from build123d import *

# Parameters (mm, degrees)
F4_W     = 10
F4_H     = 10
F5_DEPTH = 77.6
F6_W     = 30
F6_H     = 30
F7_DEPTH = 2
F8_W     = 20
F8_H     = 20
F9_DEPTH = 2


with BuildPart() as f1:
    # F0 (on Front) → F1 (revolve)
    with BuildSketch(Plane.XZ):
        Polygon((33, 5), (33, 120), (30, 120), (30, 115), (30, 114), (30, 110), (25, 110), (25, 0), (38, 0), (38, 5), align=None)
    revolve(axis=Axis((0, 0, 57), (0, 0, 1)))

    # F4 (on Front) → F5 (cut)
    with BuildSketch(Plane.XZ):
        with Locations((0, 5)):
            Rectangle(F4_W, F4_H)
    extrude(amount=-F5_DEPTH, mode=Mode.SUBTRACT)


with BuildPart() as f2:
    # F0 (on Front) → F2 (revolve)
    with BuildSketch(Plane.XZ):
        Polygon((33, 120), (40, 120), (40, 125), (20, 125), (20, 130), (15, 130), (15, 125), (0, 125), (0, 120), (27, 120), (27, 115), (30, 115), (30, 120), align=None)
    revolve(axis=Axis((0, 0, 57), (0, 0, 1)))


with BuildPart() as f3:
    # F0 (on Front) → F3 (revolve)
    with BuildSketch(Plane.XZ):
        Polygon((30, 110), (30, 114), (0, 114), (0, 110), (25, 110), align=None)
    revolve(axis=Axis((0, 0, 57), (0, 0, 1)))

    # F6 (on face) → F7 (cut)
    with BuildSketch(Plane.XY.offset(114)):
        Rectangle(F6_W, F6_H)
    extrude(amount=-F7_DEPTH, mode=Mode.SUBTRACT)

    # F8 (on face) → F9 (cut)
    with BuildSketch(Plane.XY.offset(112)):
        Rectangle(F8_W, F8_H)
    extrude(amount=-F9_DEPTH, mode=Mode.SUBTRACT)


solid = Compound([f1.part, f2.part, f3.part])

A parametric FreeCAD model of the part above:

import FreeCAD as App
import Part
import Sketcher

V = App.Vector

doc = App.newDocument("Part")
params = doc.addObject("Spreadsheet::Sheet", "Params")
for row, (alias, value) in enumerate([
    ("sketch1_width", "3 mm"),
    ("sketch1_width2", "5 mm"),
    ("sketch1_height", "115 mm"),
    ("sketch1_height2", "10 mm"),
    ("revolution_angle", "360 deg"),
    ("sketch2_width", "10 mm"),
    ("pocket1_length", "77.6 mm"),
    ("sketch3_width", "20 mm"),
    ("sketch3_width2", "5 mm"),
    ("sketch3_width3", "15 mm"),
    ("sketch3_width4", "27 mm"),
    ("sketch3_width5", "3 mm"),
    ("revolution2_angle", "360 deg"),
    ("sketch4_width", "30 mm"),
    ("sketch4_height", "4 mm"),
    ("revolution3_angle", "360 deg"),
    ("sketch5_width", "30 mm"),
    ("pocket2_length", "2 mm"),
    ("sketch6_width", "20 mm"),
    ("pocket3_length", "2 mm"),
], start=1):
    params.set(f"A{row}", alias)
    params.set(f"B{row}", "=" + value)
    params.setAlias(f"B{row}", alias)

body = doc.addObject("PartDesign::Body", "Body")

# Sketch on XZ plane
sketch1 = doc.addObject("Sketcher::SketchObject", "Sketch")
body.addObject(sketch1)
sketch1.AttachmentSupport = (doc.XZ_Plane, [""])
sketch1.MapMode = "FlatFace"
sketch1.addGeometry([
    Part.LineSegment(V(33, 5, 0), V(33, 120, 0)),  # 0
    Part.LineSegment(V(33, 120, 0), V(30, 120, 0)),  # 1
    Part.LineSegment(V(30, 120, 0), V(30, 110, 0)),  # 2
    Part.LineSegment(V(30, 110, 0), V(25, 110, 0)),  # 3
    Part.LineSegment(V(25, 110, 0), V(25, 0, 0)),  # 4
    Part.LineSegment(V(25, 0, 0), V(38, 0, 0)),  # 5
    Part.LineSegment(V(38, 0, 0), V(38, 5, 0)),  # 6
    Part.LineSegment(V(38, 5, 0), V(33, 5, 0)),  # 7
], False)
sketch1.addConstraint([
    Sketcher.Constraint("Coincident", 0, 2, 1, 1),
    Sketcher.Constraint("Coincident", 1, 2, 2, 1),
    Sketcher.Constraint("Coincident", 2, 2, 3, 1),
    Sketcher.Constraint("Coincident", 3, 2, 4, 1),
    Sketcher.Constraint("Coincident", 4, 2, 5, 1),
    Sketcher.Constraint("Coincident", 5, 2, 6, 1),
    Sketcher.Constraint("Coincident", 6, 2, 7, 1),
    Sketcher.Constraint("Coincident", 7, 2, 0, 1),
    Sketcher.Constraint("Vertical", 0),
    Sketcher.Constraint("Horizontal", 1),
    Sketcher.Constraint("Vertical", 2),
    Sketcher.Constraint("Horizontal", 3),
    Sketcher.Constraint("Vertical", 4),
    Sketcher.Constraint("Horizontal", 5),
    Sketcher.Constraint("Vertical", 6),
    Sketcher.Constraint("Horizontal", 7),
    Sketcher.Constraint("PointOnObject", 4, 2, -1),
    Sketcher.Constraint("Equal", 3, 7),
    Sketcher.Constraint("Equal", 7, 6),
    Sketcher.Constraint("DistanceX", 1, 2, 1, 1, 3.0),
    Sketcher.Constraint("DistanceX", 3, 2, 3, 1, 5.0),
    Sketcher.Constraint("DistanceY", 0, 1, 0, 2, 115.0),
    Sketcher.Constraint("DistanceY", 2, 2, 2, 1, 10.0),
    Sketcher.Constraint("DistanceX", -1, 1, 0, 2, 33.0),
])
sketch1.setExpression("Constraints[19]", "Params.sketch1_width")
sketch1.setExpression("Constraints[20]", "Params.sketch1_width2")
sketch1.setExpression("Constraints[21]", "Params.sketch1_height")
sketch1.setExpression("Constraints[22]", "Params.sketch1_height2")
revolution = doc.addObject("PartDesign::Revolution", "Revolution")
body.addObject(revolution)
revolution.Profile = sketch1
revolution.ReferenceAxis = (sketch1, ["V_Axis"])
revolution.setExpression("Angle", "Params.revolution_angle")

# Sketch on XZ plane
sketch2 = doc.addObject("Sketcher::SketchObject", "Sketch001")
body.addObject(sketch2)
sketch2.AttachmentSupport = (doc.XZ_Plane, [""])
sketch2.MapMode = "FlatFace"
sketch2.addGeometry([
    Part.LineSegment(V(-5, 10, 0), V(-5, 0, 0)),
    Part.LineSegment(V(-5, 0, 0), V(5, 0, 0)),
    Part.LineSegment(V(5, 0, 0), V(5, 10, 0)),
    Part.LineSegment(V(5, 10, 0), V(-5, 10, 0)),
], False)
sketch2.addConstraint([
    Sketcher.Constraint("Coincident", 0, 2, 1, 1),
    Sketcher.Constraint("Coincident", 1, 2, 2, 1),
    Sketcher.Constraint("Coincident", 2, 2, 3, 1),
    Sketcher.Constraint("Coincident", 3, 2, 0, 1),
    Sketcher.Constraint("Vertical", 0),
    Sketcher.Constraint("Horizontal", 1),
    Sketcher.Constraint("Vertical", 2),
    Sketcher.Constraint("Horizontal", 3),
    Sketcher.Constraint("Symmetric", 0, 2, 1, 2, -1, 1),
    Sketcher.Constraint("Equal", 3, 0),
    Sketcher.Constraint("DistanceX", 1, 1, 1, 2, 10.0),
])
sketch2.setExpression("Constraints[10]", "Params.sketch2_width")
pocket1 = doc.addObject("PartDesign::Pocket", "Pocket")
body.addObject(pocket1)
pocket1.Profile = sketch2
pocket1.setExpression("Length", "Params.pocket1_length")
body2 = doc.addObject("PartDesign::Body", "Body001")

# Sketch on XZ plane
sketch3 = doc.addObject("Sketcher::SketchObject", "Sketch002")
body2.addObject(sketch3)
sketch3.AttachmentSupport = (doc.getObject("XZ_Plane001"), [""])
sketch3.MapMode = "FlatFace"
sketch3.addGeometry([
    Part.LineSegment(V(40, 120, 0), V(40, 125, 0)),  # 0
    Part.LineSegment(V(40, 125, 0), V(20, 125, 0)),  # 1
    Part.LineSegment(V(20, 125, 0), V(20, 130, 0)),  # 2
    Part.LineSegment(V(20, 130, 0), V(15, 130, 0)),  # 3
    Part.LineSegment(V(15, 130, 0), V(15, 125, 0)),  # 4
    Part.LineSegment(V(15, 125, 0), V(0, 125, 0)),  # 5
    Part.LineSegment(V(0, 125, 0), V(0, 120, 0)),  # 6
    Part.LineSegment(V(0, 120, 0), V(27, 120, 0)),  # 7
    Part.LineSegment(V(27, 120, 0), V(27, 115, 0)),  # 8
    Part.LineSegment(V(27, 115, 0), V(30, 115, 0)),  # 9
    Part.LineSegment(V(30, 115, 0), V(30, 120, 0)),  # 10
    Part.LineSegment(V(30, 120, 0), V(40, 120, 0)),  # 11
], False)
sketch3.addConstraint([
    Sketcher.Constraint("Coincident", 0, 2, 1, 1),
    Sketcher.Constraint("Coincident", 1, 2, 2, 1),
    Sketcher.Constraint("Coincident", 2, 2, 3, 1),
    Sketcher.Constraint("Coincident", 3, 2, 4, 1),
    Sketcher.Constraint("Coincident", 4, 2, 5, 1),
    Sketcher.Constraint("Coincident", 5, 2, 6, 1),
    Sketcher.Constraint("Coincident", 6, 2, 7, 1),
    Sketcher.Constraint("Coincident", 7, 2, 8, 1),
    Sketcher.Constraint("Coincident", 8, 2, 9, 1),
    Sketcher.Constraint("Coincident", 9, 2, 10, 1),
    Sketcher.Constraint("Coincident", 10, 2, 11, 1),
    Sketcher.Constraint("Coincident", 11, 2, 0, 1),
    Sketcher.Constraint("Vertical", 0),
    Sketcher.Constraint("Horizontal", 1),
    Sketcher.Constraint("Vertical", 2),
    Sketcher.Constraint("Horizontal", 3),
    Sketcher.Constraint("Vertical", 4),
    Sketcher.Constraint("Horizontal", 5),
    Sketcher.Constraint("Vertical", 6),
    Sketcher.Constraint("Horizontal", 7),
    Sketcher.Constraint("Vertical", 8),
    Sketcher.Constraint("Horizontal", 9),
    Sketcher.Constraint("Vertical", 10),
    Sketcher.Constraint("Horizontal", 11),
    Sketcher.Constraint("PointOnObject", 5, 2, -2),
    Sketcher.Constraint("Horizontal", 1, 2, 4, 2),
    Sketcher.Constraint("Horizontal", 7, 2, 10, 2),
    Sketcher.Constraint("Equal", 3, 0),
    Sketcher.Constraint("Equal", 0, 2),
    Sketcher.Constraint("Equal", 6, 8),
    Sketcher.Constraint("DistanceX", 1, 2, 1, 1, 20.0),
    Sketcher.Constraint("DistanceX", 3, 2, 3, 1, 5.0),
    Sketcher.Constraint("DistanceX", 5, 2, 5, 1, 15.0),
    Sketcher.Constraint("DistanceX", 7, 1, 7, 2, 27.0),
    Sketcher.Constraint("DistanceX", 9, 1, 9, 2, 3.0),
    Sketcher.Constraint("DistanceY", -1, 1, 0, 2, 125.0),
])
sketch3.setExpression("Constraints[30]", "Params.sketch3_width")
sketch3.setExpression("Constraints[31]", "Params.sketch3_width2")
sketch3.setExpression("Constraints[32]", "Params.sketch3_width3")
sketch3.setExpression("Constraints[33]", "Params.sketch3_width4")
sketch3.setExpression("Constraints[34]", "Params.sketch3_width5")
revolution2 = doc.addObject("PartDesign::Revolution", "Revolution001")
body2.addObject(revolution2)
revolution2.Profile = sketch3
revolution2.ReferenceAxis = (sketch3, ["V_Axis"])
revolution2.setExpression("Angle", "Params.revolution2_angle")
body3 = doc.addObject("PartDesign::Body", "Body002")

# Sketch on XZ plane
sketch4 = doc.addObject("Sketcher::SketchObject", "Sketch003")
body3.addObject(sketch4)
sketch4.AttachmentSupport = (doc.getObject("XZ_Plane002"), [""])
sketch4.MapMode = "FlatFace"
sketch4.addGeometry([
    Part.LineSegment(V(30, 110, 0), V(30, 114, 0)),
    Part.LineSegment(V(30, 114, 0), V(0, 114, 0)),
    Part.LineSegment(V(0, 114, 0), V(0, 110, 0)),
    Part.LineSegment(V(0, 110, 0), V(30, 110, 0)),
], False)
sketch4.addConstraint([
    Sketcher.Constraint("Coincident", 0, 2, 1, 1),
    Sketcher.Constraint("Coincident", 1, 2, 2, 1),
    Sketcher.Constraint("Coincident", 2, 2, 3, 1),
    Sketcher.Constraint("Coincident", 3, 2, 0, 1),
    Sketcher.Constraint("Vertical", 0),
    Sketcher.Constraint("Horizontal", 1),
    Sketcher.Constraint("Vertical", 2),
    Sketcher.Constraint("Horizontal", 3),
    Sketcher.Constraint("PointOnObject", 1, 2, -2),
    Sketcher.Constraint("DistanceX", 1, 2, 1, 1, 30.0),
    Sketcher.Constraint("DistanceY", 0, 1, 0, 2, 4.0),
    Sketcher.Constraint("DistanceY", -1, 1, 0, 2, 114.0),
])
sketch4.setExpression("Constraints[9]", "Params.sketch4_width")
sketch4.setExpression("Constraints[10]", "Params.sketch4_height")
revolution3 = doc.addObject("PartDesign::Revolution", "Revolution002")
body3.addObject(revolution3)
revolution3.Profile = sketch4
revolution3.ReferenceAxis = (sketch4, ["V_Axis"])
revolution3.setExpression("Angle", "Params.revolution3_angle")

# Sketch on XY plane
sketch5 = doc.addObject("Sketcher::SketchObject", "Sketch004")
body3.addObject(sketch5)
sketch5.AttachmentSupport = (doc.getObject("XY_Plane002"), [""])
sketch5.MapMode = "FlatFace"
sketch5.AttachmentOffset = App.Placement(V(0, 0, 114), App.Rotation())
sketch5.addGeometry([
    Part.LineSegment(V(-15, 15, 0), V(-15, -15, 0)),
    Part.LineSegment(V(-15, -15, 0), V(15, -15, 0)),
    Part.LineSegment(V(15, -15, 0), V(15, 15, 0)),
    Part.LineSegment(V(15, 15, 0), V(-15, 15, 0)),
], False)
sketch5.addConstraint([
    Sketcher.Constraint("Coincident", 0, 2, 1, 1),
    Sketcher.Constraint("Coincident", 1, 2, 2, 1),
    Sketcher.Constraint("Coincident", 2, 2, 3, 1),
    Sketcher.Constraint("Coincident", 3, 2, 0, 1),
    Sketcher.Constraint("Vertical", 0),
    Sketcher.Constraint("Horizontal", 1),
    Sketcher.Constraint("Vertical", 2),
    Sketcher.Constraint("Horizontal", 3),
    Sketcher.Constraint("Symmetric", 0, 2, 2, 2, -1, 1),
    Sketcher.Constraint("Equal", 3, 0),
    Sketcher.Constraint("DistanceX", 1, 1, 1, 2, 30.0),
])
sketch5.setExpression("Constraints[10]", "Params.sketch5_width")
pocket2 = doc.addObject("PartDesign::Pocket", "Pocket001")
body3.addObject(pocket2)
pocket2.Profile = sketch5
pocket2.setExpression("Length", "Params.pocket2_length")

# Sketch on XY plane
sketch6 = doc.addObject("Sketcher::SketchObject", "Sketch005")
body3.addObject(sketch6)
sketch6.AttachmentSupport = (doc.getObject("XY_Plane002"), [""])
sketch6.MapMode = "FlatFace"
sketch6.AttachmentOffset = App.Placement(V(0, 0, 112), App.Rotation())
sketch6.addGeometry([
    Part.LineSegment(V(-10, 10, 0), V(-10, -10, 0)),
    Part.LineSegment(V(-10, -10, 0), V(10, -10, 0)),
    Part.LineSegment(V(10, -10, 0), V(10, 10, 0)),
    Part.LineSegment(V(10, 10, 0), V(-10, 10, 0)),
], False)
sketch6.addConstraint([
    Sketcher.Constraint("Coincident", 0, 2, 1, 1),
    Sketcher.Constraint("Coincident", 1, 2, 2, 1),
    Sketcher.Constraint("Coincident", 2, 2, 3, 1),
    Sketcher.Constraint("Coincident", 3, 2, 0, 1),
    Sketcher.Constraint("Vertical", 0),
    Sketcher.Constraint("Horizontal", 1),
    Sketcher.Constraint("Vertical", 2),
    Sketcher.Constraint("Horizontal", 3),
    Sketcher.Constraint("Symmetric", 0, 2, 2, 2, -1, 1),
    Sketcher.Constraint("Equal", 3, 0),
    Sketcher.Constraint("DistanceX", 1, 1, 1, 2, 20.0),
])
sketch6.setExpression("Constraints[10]", "Params.sketch6_width")
pocket3 = doc.addObject("PartDesign::Pocket", "Pocket002")
body3.addObject(pocket3)
pocket3.Profile = sketch6
pocket3.setExpression("Length", "Params.pocket3_length")

doc.recompute()
